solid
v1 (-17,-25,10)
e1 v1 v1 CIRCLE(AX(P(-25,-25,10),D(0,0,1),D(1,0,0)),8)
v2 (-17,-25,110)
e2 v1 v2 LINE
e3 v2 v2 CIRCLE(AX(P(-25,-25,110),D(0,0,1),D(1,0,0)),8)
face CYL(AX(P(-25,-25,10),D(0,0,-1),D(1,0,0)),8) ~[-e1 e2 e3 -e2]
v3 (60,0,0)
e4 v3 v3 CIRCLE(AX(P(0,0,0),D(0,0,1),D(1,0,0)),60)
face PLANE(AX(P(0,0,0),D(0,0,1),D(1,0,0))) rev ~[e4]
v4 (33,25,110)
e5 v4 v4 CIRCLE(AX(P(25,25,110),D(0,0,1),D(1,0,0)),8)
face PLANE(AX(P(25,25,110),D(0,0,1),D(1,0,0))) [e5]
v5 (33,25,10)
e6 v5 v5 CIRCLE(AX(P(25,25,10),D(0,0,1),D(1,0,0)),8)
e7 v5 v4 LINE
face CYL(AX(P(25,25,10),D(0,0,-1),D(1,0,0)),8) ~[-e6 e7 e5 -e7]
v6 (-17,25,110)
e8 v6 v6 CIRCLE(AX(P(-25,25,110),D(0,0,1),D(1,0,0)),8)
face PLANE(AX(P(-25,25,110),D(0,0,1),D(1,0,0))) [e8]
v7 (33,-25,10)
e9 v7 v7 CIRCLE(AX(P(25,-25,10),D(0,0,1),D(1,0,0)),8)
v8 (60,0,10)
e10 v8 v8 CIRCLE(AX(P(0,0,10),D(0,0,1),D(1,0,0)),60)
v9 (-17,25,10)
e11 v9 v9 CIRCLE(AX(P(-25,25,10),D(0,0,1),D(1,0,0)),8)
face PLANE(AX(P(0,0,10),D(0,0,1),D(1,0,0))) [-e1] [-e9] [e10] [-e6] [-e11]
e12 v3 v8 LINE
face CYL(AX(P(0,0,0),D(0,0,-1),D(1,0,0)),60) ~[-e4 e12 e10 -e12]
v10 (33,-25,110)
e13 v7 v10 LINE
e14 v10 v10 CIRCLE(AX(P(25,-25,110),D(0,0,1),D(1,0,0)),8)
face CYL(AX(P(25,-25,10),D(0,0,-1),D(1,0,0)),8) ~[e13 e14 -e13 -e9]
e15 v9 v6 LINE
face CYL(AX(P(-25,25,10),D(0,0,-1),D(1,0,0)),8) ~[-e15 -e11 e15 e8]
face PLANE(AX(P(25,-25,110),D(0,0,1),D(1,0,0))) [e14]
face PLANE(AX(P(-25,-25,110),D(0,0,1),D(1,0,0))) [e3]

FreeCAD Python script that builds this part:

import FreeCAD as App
import Part
import Sketcher
from FreeCAD import Vector

doc = App.newDocument("Part")
body = doc.addObject("PartDesign::Body", "Body")

sketch1 = doc.addObject("Sketcher::SketchObject", "Sketch")
body.addObject(sketch1)
sketch1.AttachmentSupport = (doc.XY_Plane, [""])
sketch1.MapMode = "FlatFace"
sketch1.addGeometry(Part.Circle(Vector(0, 0, 0), Vector(0, 0, 1), 60), False)
sketch1.addConstraint(Sketcher.Constraint("Coincident", 0, 3, -1, 1))
sketch1.addConstraint(Sketcher.Constraint("Diameter", 0, 120.0))
pad1 = doc.addObject("PartDesign::Pad", "Pad")
body.addObject(pad1)
pad1.Profile = sketch1
pad1.Length = 10

sketch2 = doc.addObject("Sketcher::SketchObject", "Sketch001")
body.addObject(sketch2)
sketch2.AttachmentSupport = (doc.XY_Plane, [""])
sketch2.MapMode = "FlatFace"
sketch2.AttachmentOffset = App.Placement(Vector(0, 0, 10), App.Rotation())
sketch2.addGeometry(Part.Circle(Vector(-25, 25, 0), Vector(0, 0, 1), 8), False)
sketch2.addGeometry(Part.Circle(Vector(25, 25, 0), Vector(0, 0, 1), 8), False)
sketch2.addGeometry(Part.Circle(Vector(-25, -25, 0), Vector(0, 0, 1), 8), False)
sketch2.addGeometry(Part.Circle(Vector(25, -25, 0), Vector(0, 0, 1), 8), False)
sketch2.addConstraint(Sketcher.Constraint("Equal", 0, 1))
sketch2.addConstraint(Sketcher.Constraint("Equal", 1, 2))
sketch2.addConstraint(Sketcher.Constraint("Equal", 2, 3))
sketch2.addConstraint(Sketcher.Constraint("Symmetric", 1, 3, 2, 3, -1, 1))
sketch2.addConstraint(Sketcher.Constraint("Symmetric", 0, 3, 3, 3, -1, 1))
sketch2.addConstraint(Sketcher.Constraint("Symmetric", 0, 3, 1, 3, -2))
sketch2.addConstraint(Sketcher.Constraint("Diameter", 0, 16.0))
sketch2.addConstraint(Sketcher.Constraint("DistanceX", 0, 3, -1, 1, 25.0))
sketch2.addConstraint(Sketcher.Constraint("DistanceY", -1, 1, 0, 3, 25.0))
pad2 = doc.addObject("PartDesign::Pad", "Pad001")
body.addObject(pad2)
pad2.Profile = sketch2
pad2.Length = 100

doc.recompute()
